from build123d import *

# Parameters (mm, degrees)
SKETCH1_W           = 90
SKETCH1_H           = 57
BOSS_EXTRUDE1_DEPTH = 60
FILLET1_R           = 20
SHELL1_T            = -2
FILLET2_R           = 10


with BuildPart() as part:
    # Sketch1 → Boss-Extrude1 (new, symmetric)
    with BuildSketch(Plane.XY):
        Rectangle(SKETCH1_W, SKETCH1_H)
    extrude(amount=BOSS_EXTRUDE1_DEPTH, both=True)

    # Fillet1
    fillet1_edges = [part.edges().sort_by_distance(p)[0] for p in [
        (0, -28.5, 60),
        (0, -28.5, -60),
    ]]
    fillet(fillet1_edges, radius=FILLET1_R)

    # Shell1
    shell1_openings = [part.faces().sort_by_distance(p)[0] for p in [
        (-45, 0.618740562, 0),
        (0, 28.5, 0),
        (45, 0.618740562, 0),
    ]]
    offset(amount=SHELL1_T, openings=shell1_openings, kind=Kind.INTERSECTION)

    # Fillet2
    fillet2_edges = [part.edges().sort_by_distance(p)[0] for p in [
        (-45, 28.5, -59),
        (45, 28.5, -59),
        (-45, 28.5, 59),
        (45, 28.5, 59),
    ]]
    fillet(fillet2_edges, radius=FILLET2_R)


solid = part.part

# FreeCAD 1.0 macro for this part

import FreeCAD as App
import Part
import Sketcher

V = App.Vector
Q = App.Units.Quantity


def edges_at(feature, points):
    """Names of the edges that pass closest to the given points."""
    edges = feature.Shape.Edges
    near = lambda p: min(range(len(edges)), key=lambda i: edges[i].distToShape(Part.Vertex(*p))[0])
    return sorted({f"Edge{near(p) + 1}" for p in points})


def faces_at(feature, points):
    """Names of the faces that lie closest to the given points."""
    faces = feature.Shape.Faces
    near = lambda p: min(range(len(faces)), key=lambda i: faces[i].distToShape(Part.Vertex(*p))[0])
    return sorted({f"Face{near(p) + 1}" for p in points})


def add_polygon(sketch, points):
    """Adds a closed chain of lines whose ends are joined by coincident constraints."""
    first, n = sketch.GeometryCount, len(points)
    for a, b in zip(points, points[1:] + points[:1]):
        sketch.addGeometry(Part.LineSegment(App.Vector(*a, 0), App.Vector(*b, 0)), False)
    for i in range(n):
        sketch.addConstraint(Sketcher.Constraint("Coincident", first + i, 2, first + (i + 1) % n, 1))

doc = App.newDocument("Part")
params = doc.addObject("Spreadsheet::Sheet", "Params")
for row, (alias, value) in enumerate([
    ("sketch1_width", "90 mm"),
    ("sketch1_height", "57 mm"),
    ("pad1_length", "120 mm"),
    ("fillet_radius", "20 mm"),
    ("thickness_wall", "2 mm"),
    ("fillet2_radius", "10 mm"),
], start=1):
    params.set(f"A{row}", alias)
    params.set(f"B{row}", "=" + value)
    params.setAlias(f"B{row}", alias)

body = doc.addObject("PartDesign::Body", "Body")

sketch1 = doc.addObject("Sketcher::SketchObject", "Sketch")
body.addObject(sketch1)
sketch1.AttachmentSupport = (doc.XY_Plane, [""])
sketch1.MapMode = "FlatFace"
add_polygon(sketch1, [(-45, 28), (-45, -28), (45, -28), (45, 28)])
sketch1.addConstraint(Sketcher.Constraint("Vertical", 0))
sketch1.addConstraint(Sketcher.Constraint("Horizontal", 1))
sketch1.addConstraint(Sketcher.Constraint("Vertical", 2))
sketch1.addConstraint(Sketcher.Constraint("Horizontal", 3))
sketch1.addConstraint(Sketcher.Constraint("Symmetric", 0, 2, 2, 2, -1, 1))
sketch1.addConstraint(Sketcher.Constraint("DistanceX", 1, 1, 1, 2, Q("90 mm")))
sketch1.addConstraint(Sketcher.Constraint("DistanceY", 0, 2, 0, 1, Q("57 mm")))
sketch1.setExpression("Constraints[9]", "Params.sketch1_width")
sketch1.setExpression("Constraints[10]", "Params.sketch1_height")
pad1 = doc.addObject("PartDesign::Pad", "Pad")
body.addObject(pad1)
pad1.Profile = sketch1
pad1.setExpression("Length", "Params.pad1_length")
pad1.Midplane = True
doc.recompute()

fillet = doc.addObject("PartDesign::Fillet", "Fillet")
body.addObject(fillet)
fillet.Base = (pad1, edges_at(pad1, [(0, -28.5, 60), (0, -28.5, -60)]))
fillet.setExpression("Radius", "Params.fillet_radius")
doc.recompute()

thickness = doc.addObject("PartDesign::Thickness", "Thickness")
body.addObject(thickness)
thickness.Base = (fillet, faces_at(fillet, [(-45, 0, 0), (0, 28.5, 0), (45, 0, 0)]))
thickness.setExpression("Value", "Params.thickness_wall")
thickness.Reversed = True
thickness.Join = "Intersection"
doc.recompute()

fillet2 = doc.addObject("PartDesign::Fillet", "Fillet001")
body.addObject(fillet2)
fillet2.Base = (thickness, edges_at(thickness, [
    (-45, 28.5, -59),
    (45, 28.5, -59),
    (-45, 28.5, 59),
    (45, 28.5, 59),
]))
fillet2.setExpression("Radius", "Params.fillet2_radius")

doc.recompute()
